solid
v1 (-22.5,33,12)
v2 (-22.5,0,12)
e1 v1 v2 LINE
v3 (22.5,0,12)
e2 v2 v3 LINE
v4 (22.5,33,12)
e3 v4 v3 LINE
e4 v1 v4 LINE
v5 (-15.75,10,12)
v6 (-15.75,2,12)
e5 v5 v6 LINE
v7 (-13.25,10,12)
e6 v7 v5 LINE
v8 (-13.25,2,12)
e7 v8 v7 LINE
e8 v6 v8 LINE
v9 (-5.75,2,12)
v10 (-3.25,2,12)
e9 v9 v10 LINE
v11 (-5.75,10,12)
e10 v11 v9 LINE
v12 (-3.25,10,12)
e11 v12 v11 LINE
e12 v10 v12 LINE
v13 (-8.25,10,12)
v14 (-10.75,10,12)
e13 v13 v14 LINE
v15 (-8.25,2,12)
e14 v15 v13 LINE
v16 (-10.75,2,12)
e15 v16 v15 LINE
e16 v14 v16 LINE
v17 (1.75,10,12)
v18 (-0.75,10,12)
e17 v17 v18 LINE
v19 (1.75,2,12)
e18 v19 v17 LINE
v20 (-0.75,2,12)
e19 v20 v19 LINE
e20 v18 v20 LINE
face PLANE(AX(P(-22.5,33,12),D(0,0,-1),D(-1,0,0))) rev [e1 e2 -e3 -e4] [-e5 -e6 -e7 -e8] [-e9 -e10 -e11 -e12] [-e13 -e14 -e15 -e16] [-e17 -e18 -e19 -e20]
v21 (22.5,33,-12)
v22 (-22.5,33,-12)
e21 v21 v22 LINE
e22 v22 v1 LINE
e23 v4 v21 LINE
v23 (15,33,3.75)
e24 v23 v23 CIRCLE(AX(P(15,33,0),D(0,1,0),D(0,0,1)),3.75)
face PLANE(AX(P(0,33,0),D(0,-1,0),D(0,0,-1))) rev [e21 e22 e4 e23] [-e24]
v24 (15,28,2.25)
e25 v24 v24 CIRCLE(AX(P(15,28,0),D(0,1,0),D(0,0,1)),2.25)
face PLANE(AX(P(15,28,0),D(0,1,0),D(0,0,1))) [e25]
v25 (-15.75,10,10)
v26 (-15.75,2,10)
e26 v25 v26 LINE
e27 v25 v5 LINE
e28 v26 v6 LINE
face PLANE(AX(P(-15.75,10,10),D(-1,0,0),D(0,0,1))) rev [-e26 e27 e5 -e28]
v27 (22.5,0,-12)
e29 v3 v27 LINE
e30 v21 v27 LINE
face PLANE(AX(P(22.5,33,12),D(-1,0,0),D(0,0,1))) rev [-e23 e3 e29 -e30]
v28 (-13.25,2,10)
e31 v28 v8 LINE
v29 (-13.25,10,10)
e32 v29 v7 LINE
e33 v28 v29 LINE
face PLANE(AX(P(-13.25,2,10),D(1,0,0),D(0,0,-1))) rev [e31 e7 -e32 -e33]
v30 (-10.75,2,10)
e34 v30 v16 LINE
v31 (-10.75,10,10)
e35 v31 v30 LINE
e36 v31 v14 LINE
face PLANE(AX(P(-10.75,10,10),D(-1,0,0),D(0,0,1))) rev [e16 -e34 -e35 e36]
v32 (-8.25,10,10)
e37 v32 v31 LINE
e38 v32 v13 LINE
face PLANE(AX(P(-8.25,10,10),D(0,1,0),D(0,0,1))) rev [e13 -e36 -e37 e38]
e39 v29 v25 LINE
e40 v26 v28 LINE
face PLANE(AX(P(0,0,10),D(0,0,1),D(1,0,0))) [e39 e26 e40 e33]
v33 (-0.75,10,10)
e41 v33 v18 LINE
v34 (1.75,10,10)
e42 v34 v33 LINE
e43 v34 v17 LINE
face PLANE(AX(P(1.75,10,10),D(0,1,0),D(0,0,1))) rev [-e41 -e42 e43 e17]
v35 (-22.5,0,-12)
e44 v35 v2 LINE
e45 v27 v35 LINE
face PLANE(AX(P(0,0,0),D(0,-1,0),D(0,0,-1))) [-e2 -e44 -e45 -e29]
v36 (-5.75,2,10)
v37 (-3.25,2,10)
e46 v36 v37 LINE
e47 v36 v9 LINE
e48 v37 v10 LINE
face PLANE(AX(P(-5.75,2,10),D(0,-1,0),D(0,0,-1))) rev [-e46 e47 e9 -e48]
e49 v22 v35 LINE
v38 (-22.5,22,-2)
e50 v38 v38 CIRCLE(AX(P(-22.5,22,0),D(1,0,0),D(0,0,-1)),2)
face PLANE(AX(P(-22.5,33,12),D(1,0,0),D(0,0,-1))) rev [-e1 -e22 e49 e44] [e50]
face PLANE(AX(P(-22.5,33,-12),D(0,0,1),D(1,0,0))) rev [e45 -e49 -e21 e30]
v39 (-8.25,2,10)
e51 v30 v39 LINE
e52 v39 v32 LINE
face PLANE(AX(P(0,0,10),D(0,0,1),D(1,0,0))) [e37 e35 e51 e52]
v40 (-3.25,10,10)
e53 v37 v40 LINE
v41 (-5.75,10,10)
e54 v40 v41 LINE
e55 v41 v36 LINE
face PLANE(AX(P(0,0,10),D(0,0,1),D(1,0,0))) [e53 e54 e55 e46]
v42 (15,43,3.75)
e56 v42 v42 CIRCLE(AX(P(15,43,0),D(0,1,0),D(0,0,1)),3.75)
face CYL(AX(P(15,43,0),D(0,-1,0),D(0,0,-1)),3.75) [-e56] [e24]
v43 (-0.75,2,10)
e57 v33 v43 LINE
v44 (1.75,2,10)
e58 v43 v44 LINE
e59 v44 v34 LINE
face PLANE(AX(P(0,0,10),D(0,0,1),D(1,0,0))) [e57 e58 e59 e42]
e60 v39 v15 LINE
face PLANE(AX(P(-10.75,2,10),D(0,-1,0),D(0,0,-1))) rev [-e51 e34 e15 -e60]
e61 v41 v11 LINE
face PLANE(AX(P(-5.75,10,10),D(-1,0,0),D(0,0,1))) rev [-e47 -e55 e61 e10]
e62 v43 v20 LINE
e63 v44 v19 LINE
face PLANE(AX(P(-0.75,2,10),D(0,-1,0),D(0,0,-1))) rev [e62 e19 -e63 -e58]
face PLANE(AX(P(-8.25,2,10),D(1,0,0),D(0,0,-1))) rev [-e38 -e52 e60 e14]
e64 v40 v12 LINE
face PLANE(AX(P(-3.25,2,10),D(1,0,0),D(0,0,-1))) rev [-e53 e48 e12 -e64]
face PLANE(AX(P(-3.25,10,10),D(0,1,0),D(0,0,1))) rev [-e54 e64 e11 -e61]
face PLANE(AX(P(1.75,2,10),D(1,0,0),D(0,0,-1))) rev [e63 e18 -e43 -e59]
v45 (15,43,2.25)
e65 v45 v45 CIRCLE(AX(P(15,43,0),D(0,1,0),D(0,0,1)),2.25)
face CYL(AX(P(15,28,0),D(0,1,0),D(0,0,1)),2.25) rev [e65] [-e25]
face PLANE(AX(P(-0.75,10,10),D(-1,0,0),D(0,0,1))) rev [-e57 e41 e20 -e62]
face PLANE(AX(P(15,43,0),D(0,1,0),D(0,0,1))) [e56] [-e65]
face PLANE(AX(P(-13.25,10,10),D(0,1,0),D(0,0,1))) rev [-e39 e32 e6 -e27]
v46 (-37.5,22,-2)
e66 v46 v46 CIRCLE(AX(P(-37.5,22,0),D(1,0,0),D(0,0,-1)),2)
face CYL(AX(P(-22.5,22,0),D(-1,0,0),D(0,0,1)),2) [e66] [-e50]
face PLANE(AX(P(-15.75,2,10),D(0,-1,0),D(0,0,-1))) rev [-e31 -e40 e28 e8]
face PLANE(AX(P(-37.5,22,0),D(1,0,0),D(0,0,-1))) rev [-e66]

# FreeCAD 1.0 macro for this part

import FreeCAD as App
import Part
import Sketcher
from FreeCAD import Vector


def add_polygon(sketch, points):
    """Adds a closed chain of lines whose ends are joined by coincident constraints."""
    first, n = sketch.GeometryCount, len(points)
    for a, b in zip(points, points[1:] + points[:1]):
        sketch.addGeometry(Part.LineSegment(App.Vector(*a, 0), App.Vector(*b, 0)), False)
    for i in range(n):
        sketch.addConstraint(Sketcher.Constraint("Coincident", first + i, 2, first + (i + 1) % n, 1))

doc = App.newDocument("Part")
params = doc.addObject("Spreadsheet::Sheet", "Params")
for row, (alias, value) in enumerate([
    ("sketch1_width", "45 mm"),
    ("sketch1_height", "24 mm"),
    ("pad1_length", "33 mm"),
    ("sketch2_diameter", "7.5 mm"),
    ("pad2_length", "10 mm"),
    ("sketch3_diameter", "4.5 mm"),
    ("pocket1_length", "15 mm"),
    ("sketch4_height", "8 mm"),
    ("sketch4_width", "2.5 mm"),
    ("pocket2_length", "2 mm"),
    ("sketch5_diameter", "4 mm"),
    ("pad3_length", "15 mm"),
], start=1):
    params.set(f"A{row}", alias)
    params.set(f"B{row}", "=" + value)
    params.setAlias(f"B{row}", alias)

body = doc.addObject("PartDesign::Body", "Body")

sketch1 = body.newObject("Sketcher::SketchObject", "Sketch")
sketch1.AttachmentSupport = (doc.getObject("XZ_Plane"), [""])
sketch1.MapMode = "FlatFace"
add_polygon(sketch1, [(-22.5, -12), (-22.5, 12), (22.5, 12), (22.5, -12)])
sketch1.addConstraint([
    Sketcher.Constraint("Vertical", 0),
    Sketcher.Constraint("Horizontal", 1),
    Sketcher.Constraint("Vertical", 2),
    Sketcher.Constraint("Horizontal", 3),
    Sketcher.Constraint("Symmetric", 0, 2, 2, 2, -1, 1),
    Sketcher.Constraint("DistanceX", 1, 1, 1, 2, 45.0),
    Sketcher.Constraint("DistanceY", 0, 1, 0, 2, 24.0),
])
sketch1.setExpression("Constraints[9]", "Params.sketch1_width")
sketch1.setExpression("Constraints[10]", "Params.sketch1_height")
pad1 = body.newObject("PartDesign::Pad", "Pad")
pad1.Profile = sketch1
pad1.setExpression("Length", "Params.pad1_length")
pad1.Reversed = True

sketch2 = body.newObject("Sketcher::SketchObject", "Sketch001")
sketch2.AttachmentSupport = (doc.getObject("XZ_Plane"), [""])
sketch2.MapMode = "FlatFace"
sketch2.AttachmentOffset = App.Placement(Vector(0, 0, -33), App.Rotation())
sketch2.addGeometry(Part.Circle(Vector(15, 0, 0), Vector(0, 0, 1), 3.75), False)
sketch2.addConstraint([
    Sketcher.Constraint("PointOnObject", 0, 3, -1),
    Sketcher.Constraint("Diameter", 0, 7.5),
    Sketcher.Constraint("DistanceX", -1, 1, 0, 3, 15.0),
])
sketch2.setExpression("Constraints[1]", "Params.sketch2_diameter")
pad2 = body.newObject("PartDesign::Pad", "Pad001")
pad2.Profile = sketch2
pad2.setExpression("Length", "Params.pad2_length")
pad2.Reversed = True

sketch3 = body.newObject("Sketcher::SketchObject", "Sketch002")
sketch3.AttachmentSupport = (doc.getObject("XZ_Plane"), [""])
sketch3.MapMode = "FlatFace"
sketch3.AttachmentOffset = App.Placement(Vector(0, 0, -43), App.Rotation())
sketch3.addGeometry(Part.Circle(Vector(15, 0, 0), Vector(0, 0, 1), 2.25), False)
sketch3.addConstraint([
    Sketcher.Constraint("PointOnObject", 0, 3, -1),
    Sketcher.Constraint("Diameter", 0, 4.5),
    Sketcher.Constraint("DistanceX", -1, 1, 0, 3, 15.0),
])
sketch3.setExpression("Constraints[1]", "Params.sketch3_diameter")
pocket1 = body.newObject("PartDesign::Pocket", "Pocket")
pocket1.Profile = sketch3
pocket1.setExpression("Length", "Params.pocket1_length")
pocket1.Reversed = True

sketch4 = body.newObject("Sketcher::SketchObject", "Sketch003")
sketch4.AttachmentSupport = (doc.getObject("XY_Plane"), [""])
sketch4.MapMode = "FlatFace"
sketch4.AttachmentOffset = App.Placement(Vector(0, 0, 12), App.Rotation())
add_polygon(sketch4, [(-15.75, 10), (-15.75, 2), (-13.25, 2), (-13.25, 10)])
add_polygon(sketch4, [(-10.75, 10), (-10.75, 2), (-8.25, 2), (-8.25, 10)])
add_polygon(sketch4, [(-5.75, 10), (-5.75, 2), (-3.25, 2), (-3.25, 10)])
add_polygon(sketch4, [(-0.75, 10), (-0.75, 2), (1.75, 2), (1.75, 10)])
sketch4.addConstraint([
    Sketcher.Constraint("Vertical", 0),
    Sketcher.Constraint("Horizontal", 1),
    Sketcher.Constraint("Vertical", 2),
    Sketcher.Constraint("Horizontal", 3),
    Sketcher.Constraint("Vertical", 4),
    Sketcher.Constraint("Horizontal", 5),
    Sketcher.Constraint("Vertical", 6),
    Sketcher.Constraint("Horizontal", 7),
    Sketcher.Constraint("Vertical", 8),
    Sketcher.Constraint("Horizontal", 9),
    Sketcher.Constraint("Vertical", 10),
    Sketcher.Constraint("Horizontal", 11),
    Sketcher.Constraint("Vertical", 12),
    Sketcher.Constraint("Horizontal", 13),
    Sketcher.Constraint("Vertical", 14),
    Sketcher.Constraint("Horizontal", 15),
    Sketcher.Constraint("Horizontal", 1, 2, 4, 2),
    Sketcher.Constraint("Horizontal", 3, 2, 6, 2),
    Sketcher.Constraint("Horizontal", 5, 2, 8, 2),
    Sketcher.Constraint("Horizontal", 7, 2, 10, 2),
    Sketcher.Constraint("Horizontal", 9, 2, 12, 2),
    Sketcher.Constraint("Horizontal", 11, 2, 14, 2),
    Sketcher.Constraint("Equal", 3, 5),
    Sketcher.Constraint("Equal", 7, 9),
    Sketcher.Constraint("Equal", 11, 13),
    Sketcher.Constraint("DistanceY", 0, 2, 0, 1, 8.0),
    Sketcher.Constraint("DistanceX", 1, 1, 1, 2, 2.5),
    Sketcher.Constraint("DistanceY", -1, 1, 0, 2, 2.0),
    Sketcher.Constraint("DistanceX", 0, 2, 4, 2, 5.0),
    Sketcher.Constraint("DistanceX", 4, 2, 8, 2, 5.0),
    Sketcher.Constraint("DistanceX", 8, 2, 12, 2, 5.0),
    Sketcher.Constraint("DistanceX", 0, 2, -1, 1, 15.75),
])
sketch4.setExpression("Constraints[41]", "Params.sketch4_height")
sketch4.setExpression("Constraints[42]", "Params.sketch4_width")
pocket2 = body.newObject("PartDesign::Pocket", "Pocket001")
pocket2.Profile = sketch4
pocket2.setExpression("Length", "Params.pocket2_length")

sketch5 = body.newObject("Sketcher::SketchObject", "Sketch004")
sketch5.AttachmentSupport = (doc.getObject("YZ_Plane"), [""])
sketch5.MapMode = "FlatFace"
sketch5.AttachmentOffset = App.Placement(Vector(0, 0, -37.5), App.Rotation())
sketch5.addGeometry(Part.Circle(Vector(22, 0, 0), Vector(0, 0, 1), 2), False)
sketch5.addConstraint([
    Sketcher.Constraint("PointOnObject", 0, 3, -1),
    Sketcher.Constraint("Diameter", 0, 4.0),
    Sketcher.Constraint("DistanceX", -1, 1, 0, 3, 22.0),
])
sketch5.setExpression("Constraints[1]", "Params.sketch5_diameter")
pad3 = body.newObject("PartDesign::Pad", "Pad002")
pad3.Profile = sketch5
pad3.setExpression("Length", "Params.pad3_length")

doc.recompute()
